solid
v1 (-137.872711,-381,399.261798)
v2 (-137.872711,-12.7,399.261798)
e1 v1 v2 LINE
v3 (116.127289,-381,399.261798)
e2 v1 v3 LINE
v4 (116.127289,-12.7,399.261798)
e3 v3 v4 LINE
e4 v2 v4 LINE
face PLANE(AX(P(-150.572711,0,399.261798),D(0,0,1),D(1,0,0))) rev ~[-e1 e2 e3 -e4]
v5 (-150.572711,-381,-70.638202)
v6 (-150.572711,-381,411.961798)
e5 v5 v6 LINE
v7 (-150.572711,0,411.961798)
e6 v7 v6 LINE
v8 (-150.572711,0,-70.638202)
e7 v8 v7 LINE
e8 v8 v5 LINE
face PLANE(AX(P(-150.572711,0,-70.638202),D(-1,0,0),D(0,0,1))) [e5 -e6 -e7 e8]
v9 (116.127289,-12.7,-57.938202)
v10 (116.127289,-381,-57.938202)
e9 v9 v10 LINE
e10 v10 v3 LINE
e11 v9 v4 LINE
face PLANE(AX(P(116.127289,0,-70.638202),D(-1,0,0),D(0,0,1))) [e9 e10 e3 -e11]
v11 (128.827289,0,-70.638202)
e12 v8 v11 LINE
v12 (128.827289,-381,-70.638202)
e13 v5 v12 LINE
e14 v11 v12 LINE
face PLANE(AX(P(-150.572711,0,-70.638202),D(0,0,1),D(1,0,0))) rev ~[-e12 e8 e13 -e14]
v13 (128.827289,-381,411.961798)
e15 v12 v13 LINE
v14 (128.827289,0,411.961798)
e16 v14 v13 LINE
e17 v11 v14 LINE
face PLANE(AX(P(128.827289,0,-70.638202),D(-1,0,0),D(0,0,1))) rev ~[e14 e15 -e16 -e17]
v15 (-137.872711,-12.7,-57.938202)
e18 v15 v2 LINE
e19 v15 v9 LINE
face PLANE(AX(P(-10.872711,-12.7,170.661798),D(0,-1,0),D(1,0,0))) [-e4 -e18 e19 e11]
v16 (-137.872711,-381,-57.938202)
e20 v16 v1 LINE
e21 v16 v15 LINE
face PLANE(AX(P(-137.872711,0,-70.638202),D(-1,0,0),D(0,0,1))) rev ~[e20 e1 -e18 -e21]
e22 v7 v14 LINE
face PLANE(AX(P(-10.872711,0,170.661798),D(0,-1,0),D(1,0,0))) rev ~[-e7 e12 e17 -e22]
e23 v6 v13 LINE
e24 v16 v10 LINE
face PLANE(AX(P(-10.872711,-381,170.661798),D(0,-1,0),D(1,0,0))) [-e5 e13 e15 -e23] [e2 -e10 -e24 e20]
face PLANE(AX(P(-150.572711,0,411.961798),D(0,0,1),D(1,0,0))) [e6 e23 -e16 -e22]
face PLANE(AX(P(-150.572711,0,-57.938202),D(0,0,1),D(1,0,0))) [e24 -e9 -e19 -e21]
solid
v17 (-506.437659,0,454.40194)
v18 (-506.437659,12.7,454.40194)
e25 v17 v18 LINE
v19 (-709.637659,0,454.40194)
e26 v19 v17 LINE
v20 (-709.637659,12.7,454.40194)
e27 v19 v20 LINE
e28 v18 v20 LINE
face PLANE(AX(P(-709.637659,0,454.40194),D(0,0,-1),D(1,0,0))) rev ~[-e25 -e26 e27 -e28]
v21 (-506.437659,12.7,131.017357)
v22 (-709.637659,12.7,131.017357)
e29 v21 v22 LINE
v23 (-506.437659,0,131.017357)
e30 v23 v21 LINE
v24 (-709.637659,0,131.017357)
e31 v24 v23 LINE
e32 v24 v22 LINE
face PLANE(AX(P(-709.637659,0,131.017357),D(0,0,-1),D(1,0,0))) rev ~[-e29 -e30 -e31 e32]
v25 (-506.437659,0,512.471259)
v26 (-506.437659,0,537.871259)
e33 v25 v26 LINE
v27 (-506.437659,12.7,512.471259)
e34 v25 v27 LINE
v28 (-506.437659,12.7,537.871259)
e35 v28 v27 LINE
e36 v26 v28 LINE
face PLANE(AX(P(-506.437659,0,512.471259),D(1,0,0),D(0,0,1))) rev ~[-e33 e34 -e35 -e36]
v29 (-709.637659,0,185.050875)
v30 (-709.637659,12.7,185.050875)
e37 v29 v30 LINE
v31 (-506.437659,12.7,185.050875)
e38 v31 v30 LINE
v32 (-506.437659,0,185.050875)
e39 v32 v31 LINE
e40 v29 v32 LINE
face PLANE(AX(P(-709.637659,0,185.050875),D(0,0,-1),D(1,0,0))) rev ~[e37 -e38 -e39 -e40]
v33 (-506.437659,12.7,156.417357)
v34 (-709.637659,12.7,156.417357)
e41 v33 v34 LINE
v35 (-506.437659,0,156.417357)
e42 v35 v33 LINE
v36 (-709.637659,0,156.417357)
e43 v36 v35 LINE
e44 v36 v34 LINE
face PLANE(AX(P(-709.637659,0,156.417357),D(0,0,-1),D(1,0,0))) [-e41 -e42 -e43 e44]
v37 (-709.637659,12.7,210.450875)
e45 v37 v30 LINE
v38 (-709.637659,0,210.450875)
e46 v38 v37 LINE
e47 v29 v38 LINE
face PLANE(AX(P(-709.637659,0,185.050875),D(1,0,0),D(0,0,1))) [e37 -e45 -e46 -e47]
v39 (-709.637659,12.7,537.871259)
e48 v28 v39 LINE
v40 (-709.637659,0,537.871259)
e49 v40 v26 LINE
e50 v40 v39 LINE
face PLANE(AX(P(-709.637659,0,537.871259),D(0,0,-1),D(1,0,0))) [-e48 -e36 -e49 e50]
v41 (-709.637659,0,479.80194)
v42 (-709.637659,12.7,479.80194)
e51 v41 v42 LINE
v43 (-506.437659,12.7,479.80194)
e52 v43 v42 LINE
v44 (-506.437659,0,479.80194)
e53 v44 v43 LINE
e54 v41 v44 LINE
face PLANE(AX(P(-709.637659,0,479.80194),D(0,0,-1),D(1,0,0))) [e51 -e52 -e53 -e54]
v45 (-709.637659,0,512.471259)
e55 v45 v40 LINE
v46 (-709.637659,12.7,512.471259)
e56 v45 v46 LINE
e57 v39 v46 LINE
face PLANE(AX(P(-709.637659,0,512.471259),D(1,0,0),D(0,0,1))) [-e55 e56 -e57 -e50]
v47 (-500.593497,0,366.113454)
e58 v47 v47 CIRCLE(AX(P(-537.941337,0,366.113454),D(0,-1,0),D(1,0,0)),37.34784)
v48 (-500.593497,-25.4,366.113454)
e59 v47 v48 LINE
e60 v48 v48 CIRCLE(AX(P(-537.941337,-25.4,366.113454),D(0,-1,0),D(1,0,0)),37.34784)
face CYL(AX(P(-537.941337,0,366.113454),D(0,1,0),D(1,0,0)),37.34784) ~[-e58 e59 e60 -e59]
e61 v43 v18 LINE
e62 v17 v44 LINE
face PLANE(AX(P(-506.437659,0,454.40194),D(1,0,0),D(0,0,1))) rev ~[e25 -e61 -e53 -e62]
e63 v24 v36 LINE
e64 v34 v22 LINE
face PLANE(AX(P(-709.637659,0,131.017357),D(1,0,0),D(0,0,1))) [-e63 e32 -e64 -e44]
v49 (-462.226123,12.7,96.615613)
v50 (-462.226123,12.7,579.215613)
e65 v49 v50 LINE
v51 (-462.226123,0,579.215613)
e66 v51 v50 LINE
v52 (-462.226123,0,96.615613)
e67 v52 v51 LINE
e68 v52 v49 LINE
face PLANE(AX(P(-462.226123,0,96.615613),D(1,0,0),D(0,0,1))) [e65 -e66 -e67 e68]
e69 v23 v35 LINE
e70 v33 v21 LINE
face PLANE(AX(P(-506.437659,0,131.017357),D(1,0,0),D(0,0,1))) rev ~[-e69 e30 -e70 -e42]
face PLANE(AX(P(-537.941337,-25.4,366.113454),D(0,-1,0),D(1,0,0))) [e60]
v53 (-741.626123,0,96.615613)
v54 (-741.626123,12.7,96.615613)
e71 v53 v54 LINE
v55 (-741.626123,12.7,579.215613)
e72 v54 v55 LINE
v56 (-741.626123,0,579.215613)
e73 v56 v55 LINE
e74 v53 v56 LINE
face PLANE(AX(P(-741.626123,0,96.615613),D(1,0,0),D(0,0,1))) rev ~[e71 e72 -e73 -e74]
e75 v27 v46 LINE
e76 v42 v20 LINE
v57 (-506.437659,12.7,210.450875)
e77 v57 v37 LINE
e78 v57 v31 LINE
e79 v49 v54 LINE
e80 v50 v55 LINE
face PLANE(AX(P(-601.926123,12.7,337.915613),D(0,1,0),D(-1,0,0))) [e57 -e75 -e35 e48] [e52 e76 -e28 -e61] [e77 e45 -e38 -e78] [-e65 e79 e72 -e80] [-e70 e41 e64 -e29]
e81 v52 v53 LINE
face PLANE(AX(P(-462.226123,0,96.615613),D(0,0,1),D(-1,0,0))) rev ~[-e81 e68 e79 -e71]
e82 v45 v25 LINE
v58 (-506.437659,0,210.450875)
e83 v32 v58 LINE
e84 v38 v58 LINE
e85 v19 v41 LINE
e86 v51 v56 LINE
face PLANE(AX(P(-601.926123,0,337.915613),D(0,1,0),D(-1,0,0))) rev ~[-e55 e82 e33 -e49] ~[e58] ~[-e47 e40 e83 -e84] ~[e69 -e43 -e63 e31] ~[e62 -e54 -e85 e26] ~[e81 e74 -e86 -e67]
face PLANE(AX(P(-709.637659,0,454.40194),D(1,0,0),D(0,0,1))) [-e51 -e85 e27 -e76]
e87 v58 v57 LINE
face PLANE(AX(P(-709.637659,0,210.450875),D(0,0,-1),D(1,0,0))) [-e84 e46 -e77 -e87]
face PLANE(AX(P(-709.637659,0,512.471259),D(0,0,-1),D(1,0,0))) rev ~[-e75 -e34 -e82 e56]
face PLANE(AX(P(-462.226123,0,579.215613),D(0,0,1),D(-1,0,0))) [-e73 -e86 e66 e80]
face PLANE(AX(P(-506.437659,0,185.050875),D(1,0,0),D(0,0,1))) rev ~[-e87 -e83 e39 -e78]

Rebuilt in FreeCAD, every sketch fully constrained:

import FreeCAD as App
import Part
import Sketcher
Q = App.Units.Quantity


def faces_at(feature, points):
    """Names of the faces that lie closest to the given points."""
    faces = feature.Shape.Faces
    near = lambda p: min(range(len(faces)), key=lambda i: faces[i].distToShape(Part.Vertex(*p))[0])
    return sorted({f"Face{near(p) + 1}" for p in points})

doc = App.newDocument("Part")
body = doc.addObject("PartDesign::Body", "Body")

# Sketch on XZ plane
sketch1 = body.newObject("Sketcher::SketchObject", "Sketch")
sketch1.AttachmentSupport = (doc.getObject("XZ_Plane"), [""])
sketch1.MapMode = "FlatFace"
sketch1.addGeometry(Part.LineSegment(App.Vector(-151, 412, 0), App.Vector(-151, -71, 0)), False)
sketch1.addGeometry(Part.LineSegment(App.Vector(-151, -71, 0), App.Vector(129, -71, 0)), False)
sketch1.addGeometry(Part.LineSegment(App.Vector(129, -71, 0), App.Vector(129, 412, 0)), False)
sketch1.addGeometry(Part.LineSegment(App.Vector(129, 412, 0), App.Vector(-151, 412, 0)), False)
sketch1.addConstraint(Sketcher.Constraint("Coincident", 0, 2, 1, 1))
sketch1.addConstraint(Sketcher.Constraint("Coincident", 1, 2, 2, 1))
sketch1.addConstraint(Sketcher.Constraint("Coincident", 2, 2, 3, 1))
sketch1.addConstraint(Sketcher.Constraint("Coincident", 3, 2, 0, 1))
sketch1.addConstraint(Sketcher.Constraint("Vertical", 0))
sketch1.addConstraint(Sketcher.Constraint("Horizontal", 1))
sketch1.addConstraint(Sketcher.Constraint("Vertical", 2))
sketch1.addConstraint(Sketcher.Constraint("Horizontal", 3))
sketch1.addConstraint(Sketcher.Constraint("DistanceX", 1, 1, 1, 2, Q("11 in")))
sketch1.addConstraint(Sketcher.Constraint("DistanceY", 0, 2, 0, 1, Q("19 in")))
sketch1.addConstraint(Sketcher.Constraint("DistanceY", -1, 1, 2, 2, 411.961798))
sketch1.addConstraint(Sketcher.Constraint("DistanceX", 0, 2, -1, 1, 150.572711))
pad1 = body.newObject("PartDesign::Pad", "Pad")
pad1.Profile = sketch1
pad1.Length = Q("15 in")
doc.recompute()

thickness = body.newObject("PartDesign::Thickness", "Thickness")
thickness.Base = (pad1, faces_at(pad1, [(-10.873, -381, 170.662)]))
thickness.Value = Q("0.5 in")
thickness.Reversed = True
thickness.Join = "Arc"
body2 = doc.addObject("PartDesign::Body", "Body001")

# Sketch on XZ plane
sketch2 = body2.newObject("Sketcher::SketchObject", "Sketch001")
sketch2.AttachmentSupport = (doc.getObject("XZ_Plane001"), [""])
sketch2.MapMode = "FlatFace"
sketch2.addGeometry(Part.LineSegment(App.Vector(-462, 579, 0), App.Vector(-462, 97, 0)), False)
sketch2.addGeometry(Part.LineSegment(App.Vector(-462, 97, 0), App.Vector(-742, 97, 0)), False)
sketch2.addGeometry(Part.LineSegment(App.Vector(-742, 97, 0), App.Vector(-742, 579, 0)), False)
sketch2.addGeometry(Part.LineSegment(App.Vector(-742, 579, 0), App.Vector(-462, 579, 0)), False)
sketch2.addConstraint(Sketcher.Constraint("Coincident", 0, 2, 1, 1))
sketch2.addConstraint(Sketcher.Constraint("Coincident", 1, 2, 2, 1))
sketch2.addConstraint(Sketcher.Constraint("Coincident", 2, 2, 3, 1))
sketch2.addConstraint(Sketcher.Constraint("Coincident", 3, 2, 0, 1))
sketch2.addConstraint(Sketcher.Constraint("Vertical", 0))
sketch2.addConstraint(Sketcher.Constraint("Horizontal", 1))
sketch2.addConstraint(Sketcher.Constraint("Vertical", 2))
sketch2.addConstraint(Sketcher.Constraint("Horizontal", 3))
sketch2.addConstraint(Sketcher.Constraint("DistanceX", 1, 2, 1, 1, Q("11 in")))
sketch2.addConstraint(Sketcher.Constraint("DistanceY", 0, 2, 0, 1, Q("19 in")))
sketch2.addConstraint(Sketcher.Constraint("DistanceX", 0, 2, -1, 1, 462.226123))
sketch2.addConstraint(Sketcher.Constraint("DistanceY", -1, 1, 0, 2, 96.615613))
pad2 = body2.newObject("PartDesign::Pad", "Pad001")
pad2.Profile = sketch2
pad2.Length = Q("0.5 in")
pad2.Reversed = True

# Sketch on XZ plane
sketch3 = body2.newObject("Sketcher::SketchObject", "Sketch002")
sketch3.AttachmentSupport = (doc.getObject("XZ_Plane001"), [""])
sketch3.MapMode = "FlatFace"
sketch3.addGeometry(Part.LineSegment(App.Vector(-710, 538, 0), App.Vector(-710, 512, 0)), False)
sketch3.addGeometry(Part.LineSegment(App.Vector(-710, 512, 0), App.Vector(-506, 512, 0)), False)
sketch3.addGeometry(Part.LineSegment(App.Vector(-506, 512, 0), App.Vector(-506, 538, 0)), False)
sketch3.addGeometry(Part.LineSegment(App.Vector(-506, 538, 0), App.Vector(-710, 538, 0)), False)
sketch3.addGeometry(Part.LineSegment(App.Vector(-710, 480, 0), App.Vector(-710, 454, 0)), False)
sketch3.addGeometry(Part.LineSegment(App.Vector(-710, 454, 0), App.Vector(-506, 454, 0)), False)
sketch3.addGeometry(Part.LineSegment(App.Vector(-506, 454, 0), App.Vector(-506, 480, 0)), False)
sketch3.addGeometry(Part.LineSegment(App.Vector(-506, 480, 0), App.Vector(-710, 480, 0)), False)
sketch3.addGeometry(Part.LineSegment(App.Vector(-710, 210, 0), App.Vector(-710, 185, 0)), False)
sketch3.addGeometry(Part.LineSegment(App.Vector(-710, 185, 0), App.Vector(-506, 185, 0)), False)
sketch3.addGeometry(Part.LineSegment(App.Vector(-506, 185, 0), App.Vector(-506, 210, 0)), False)
sketch3.addGeometry(Part.LineSegment(App.Vector(-506, 210, 0), App.Vector(-710, 210, 0)), False)
sketch3.addGeometry(Part.LineSegment(App.Vector(-710, 156, 0), App.Vector(-710, 131, 0)), False)
sketch3.addGeometry(Part.LineSegment(App.Vector(-710, 131, 0), App.Vector(-506, 131, 0)), False)
sketch3.addGeometry(Part.LineSegment(App.Vector(-506, 131, 0), App.Vector(-506, 156, 0)), False)
sketch3.addGeometry(Part.LineSegment(App.Vector(-506, 156, 0), App.Vector(-710, 156, 0)), False)
sketch3.addConstraint(Sketcher.Constraint("Coincident", 0, 2, 1, 1))
sketch3.addConstraint(Sketcher.Constraint("Coincident", 1, 2, 2, 1))
sketch3.addConstraint(Sketcher.Constraint("Coincident", 2, 2, 3, 1))
sketch3.addConstraint(Sketcher.Constraint("Coincident", 3, 2, 0, 1))
sketch3.addConstraint(Sketcher.Constraint("Coincident", 4, 2, 5, 1))
sketch3.addConstraint(Sketcher.Constraint("Coincident", 5, 2, 6, 1))
sketch3.addConstraint(Sketcher.Constraint("Coincident", 6, 2, 7, 1))
sketch3.addConstraint(Sketcher.Constraint("Coincident", 7, 2, 4, 1))
sketch3.addConstraint(Sketcher.Constraint("Coincident", 8, 2, 9, 1))
sketch3.addConstraint(Sketcher.Constraint("Coincident", 9, 2, 10, 1))
sketch3.addConstraint(Sketcher.Constraint("Coincident", 10, 2, 11, 1))
sketch3.addConstraint(Sketcher.Constraint("Coincident", 11, 2, 8, 1))
sketch3.addConstraint(Sketcher.Constraint("Coincident", 12, 2, 13, 1))
sketch3.addConstraint(Sketcher.Constraint("Coincident", 13, 2, 14, 1))
sketch3.addConstraint(Sketcher.Constraint("Coincident", 14, 2, 15, 1))
sketch3.addConstraint(Sketcher.Constraint("Coincident", 15, 2, 12, 1))
sketch3.addConstraint(Sketcher.Constraint("Vertical", 0))
sketch3.addConstraint(Sketcher.Constraint("Horizontal", 1))
sketch3.addConstraint(Sketcher.Constraint("Vertical", 2))
sketch3.addConstraint(Sketcher.Constraint("Horizontal", 3))
sketch3.addConstraint(Sketcher.Constraint("Vertical", 4))
sketch3.addConstraint(Sketcher.Constraint("Horizontal", 5))
sketch3.addConstraint(Sketcher.Constraint("Vertical", 6))
sketch3.addConstraint(Sketcher.Constraint("Horizontal", 7))
sketch3.addConstraint(Sketcher.Constraint("Vertical", 8))
sketch3.addConstraint(Sketcher.Constraint("Horizontal", 9))
sketch3.addConstraint(Sketcher.Constraint("Vertical", 10))
sketch3.addConstraint(Sketcher.Constraint("Horizontal", 11))
sketch3.addConstraint(Sketcher.Constraint("Vertical", 12))
sketch3.addConstraint(Sketcher.Constraint("Horizontal", 13))
sketch3.addConstraint(Sketcher.Constraint("Vertical", 14))
sketch3.addConstraint(Sketcher.Constraint("Horizontal", 15))
sketch3.addConstraint(Sketcher.Constraint("Vertical", 3, 2, 4, 2))
sketch3.addConstraint(Sketcher.Constraint("Vertical", 2, 2, 5, 2))
sketch3.addConstraint(Sketcher.Constraint("Vertical", 7, 2, 8, 2))
sketch3.addConstraint(Sketcher.Constraint("Vertical", 6, 2, 9, 2))
sketch3.addConstraint(Sketcher.Constraint("Vertical", 11, 2, 12, 2))
sketch3.addConstraint(Sketcher.Constraint("Vertical", 10, 2, 13, 2))
sketch3.addConstraint(Sketcher.Constraint("Equal", 2, 4))
sketch3.addConstraint(Sketcher.Constraint("Equal", 6, 8))
sketch3.addConstraint(Sketcher.Constraint("Equal", 10, 12))
sketch3.addConstraint(Sketcher.Constraint("DistanceX", 1, 1, 1, 2, Q("8 in")))
sketch3.addConstraint(Sketcher.Constraint("DistanceY", 0, 2, 0, 1, Q("1 in")))
sketch3.addConstraint(Sketcher.Constraint("DistanceX", 0, 2, -1, 1, 709.637659))
sketch3.addConstraint(Sketcher.Constraint("DistanceY", -1, 1, 0, 2, 512.471259))
sketch3.addConstraint(Sketcher.Constraint("DistanceY", -1, 1, 4, 2, 454.40194))
sketch3.addConstraint(Sketcher.Constraint("DistanceY", -1, 1, 8, 2, 185.050875))
sketch3.addConstraint(Sketcher.Constraint("DistanceY", -1, 1, 12, 2, 131.017357))
pocket1 = body2.newObject("PartDesign::Pocket", "Pocket")
pocket1.Profile = sketch3
pocket1.Length = Q("1 in")

# Sketch on XZ plane
sketch4 = body2.newObject("Sketcher::SketchObject", "Sketch003")
sketch4.AttachmentSupport = (doc.getObject("XZ_Plane001"), [""])
sketch4.MapMode = "FlatFace"
sketch4.addGeometry(Part.Circle(App.Vector(-538, 366, 0), App.Vector(0, 0, 1), 37), False)
sketch4.addConstraint(Sketcher.Constraint("Diameter", 0, 74.69568))
sketch4.addConstraint(Sketcher.Constraint("DistanceX", 0, 3, -1, 1, 537.941337))
sketch4.addConstraint(Sketcher.Constraint("DistanceY", -1, 1, 0, 3, 366.113454))
pad3 = body2.newObject("PartDesign::Pad", "Pad002")
pad3.Profile = sketch4
pad3.Length = Q("1 in")

doc.recompute()
